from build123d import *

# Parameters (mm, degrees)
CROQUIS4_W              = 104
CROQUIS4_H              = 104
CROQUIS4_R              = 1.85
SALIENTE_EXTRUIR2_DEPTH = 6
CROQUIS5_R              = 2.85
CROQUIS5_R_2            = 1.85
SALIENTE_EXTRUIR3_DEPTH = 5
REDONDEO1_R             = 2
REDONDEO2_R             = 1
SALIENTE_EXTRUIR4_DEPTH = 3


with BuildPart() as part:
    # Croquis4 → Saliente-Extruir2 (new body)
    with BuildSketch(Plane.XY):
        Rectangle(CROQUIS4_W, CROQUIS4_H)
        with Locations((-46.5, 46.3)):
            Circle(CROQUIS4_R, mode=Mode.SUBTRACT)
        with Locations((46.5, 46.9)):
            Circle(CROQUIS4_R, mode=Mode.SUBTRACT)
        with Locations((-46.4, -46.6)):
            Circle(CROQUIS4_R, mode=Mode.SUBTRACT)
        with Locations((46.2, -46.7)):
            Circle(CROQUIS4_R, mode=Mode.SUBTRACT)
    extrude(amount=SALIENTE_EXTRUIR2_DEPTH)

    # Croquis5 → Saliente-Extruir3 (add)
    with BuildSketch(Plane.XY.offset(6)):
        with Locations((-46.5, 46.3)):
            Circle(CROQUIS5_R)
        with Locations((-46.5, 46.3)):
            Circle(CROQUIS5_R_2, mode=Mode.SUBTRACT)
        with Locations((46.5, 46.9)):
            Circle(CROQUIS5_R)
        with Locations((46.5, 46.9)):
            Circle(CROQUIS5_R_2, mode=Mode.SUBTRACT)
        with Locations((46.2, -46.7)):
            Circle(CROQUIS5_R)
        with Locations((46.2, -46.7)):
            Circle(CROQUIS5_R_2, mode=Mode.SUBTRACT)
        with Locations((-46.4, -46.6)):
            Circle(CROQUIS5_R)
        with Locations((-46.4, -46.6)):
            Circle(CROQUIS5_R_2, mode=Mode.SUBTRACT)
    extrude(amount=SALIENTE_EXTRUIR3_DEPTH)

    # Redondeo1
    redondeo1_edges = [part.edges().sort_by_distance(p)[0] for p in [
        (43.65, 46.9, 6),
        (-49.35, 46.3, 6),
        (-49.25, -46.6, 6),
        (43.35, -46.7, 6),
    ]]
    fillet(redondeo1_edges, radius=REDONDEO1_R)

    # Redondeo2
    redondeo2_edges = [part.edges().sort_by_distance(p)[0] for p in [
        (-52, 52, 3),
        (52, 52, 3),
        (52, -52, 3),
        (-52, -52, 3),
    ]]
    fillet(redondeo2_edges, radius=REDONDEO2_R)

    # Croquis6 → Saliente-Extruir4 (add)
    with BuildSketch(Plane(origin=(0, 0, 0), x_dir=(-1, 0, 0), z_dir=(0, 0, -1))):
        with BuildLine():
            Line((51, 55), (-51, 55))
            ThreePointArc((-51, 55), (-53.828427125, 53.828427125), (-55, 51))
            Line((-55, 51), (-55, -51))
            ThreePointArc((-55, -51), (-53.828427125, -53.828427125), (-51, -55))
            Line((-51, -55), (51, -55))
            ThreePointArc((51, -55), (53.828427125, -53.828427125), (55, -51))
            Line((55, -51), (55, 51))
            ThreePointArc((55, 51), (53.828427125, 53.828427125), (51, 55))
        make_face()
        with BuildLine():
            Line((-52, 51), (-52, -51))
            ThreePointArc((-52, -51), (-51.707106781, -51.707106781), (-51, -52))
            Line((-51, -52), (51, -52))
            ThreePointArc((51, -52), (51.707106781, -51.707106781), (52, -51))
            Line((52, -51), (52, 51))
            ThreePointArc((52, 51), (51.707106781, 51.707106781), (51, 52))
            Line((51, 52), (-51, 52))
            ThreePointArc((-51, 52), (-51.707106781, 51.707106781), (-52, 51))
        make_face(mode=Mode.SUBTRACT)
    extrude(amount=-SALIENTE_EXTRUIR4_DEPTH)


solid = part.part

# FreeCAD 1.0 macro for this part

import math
import FreeCAD as App
import Part
import Sketcher
from FreeCAD import Vector
Q = App.Units.Quantity


def edges_at(feature, points):
    """Names of the edges that pass closest to the given points."""
    edges = feature.Shape.Edges
    near = lambda p: min(range(len(edges)), key=lambda i: edges[i].distToShape(Part.Vertex(*p))[0])
    return sorted({f"Edge{near(p) + 1}" for p in points})


def add_polygon(sketch, points):
    """Adds a closed chain of lines whose ends are joined by coincident constraints."""
    first, n = sketch.GeometryCount, len(points)
    for a, b in zip(points, points[1:] + points[:1]):
        sketch.addGeometry(Part.LineSegment(App.Vector(*a, 0), App.Vector(*b, 0)), False)
    for i in range(n):
        sketch.addConstraint(Sketcher.Constraint("Coincident", first + i, 2, first + (i + 1) % n, 1))

doc = App.newDocument("Part")
body = doc.addObject("PartDesign::Body", "Body")

sketch1 = body.newObject("Sketcher::SketchObject", "Sketch")
sketch1.AttachmentSupport = (doc.getObject("XY_Plane"), [""])
sketch1.MapMode = "FlatFace"
add_polygon(sketch1, [(-52, 52), (-52, -52), (52, -52), (52, 52)])
sketch1.addGeometry(Part.Circle(Vector(-46.4, -46.6, 0), Vector(0, 0, 1), 1.85), False)
sketch1.addGeometry(Part.Circle(Vector(46.2, -46.7, 0), Vector(0, 0, 1), 1.85), False)
sketch1.addGeometry(Part.Circle(Vector(-46.5, 46.3, 0), Vector(0, 0, 1), 1.85), False)
sketch1.addGeometry(Part.Circle(Vector(46.5, 46.9, 0), Vector(0, 0, 1), 1.85), False)
sketch1.addConstraint(Sketcher.Constraint("Vertical", 0))
sketch1.addConstraint(Sketcher.Constraint("Horizontal", 1))
sketch1.addConstraint(Sketcher.Constraint("Vertical", 2))
sketch1.addConstraint(Sketcher.Constraint("Horizontal", 3))
sketch1.addConstraint(Sketcher.Constraint("Equal", 4, 5))
sketch1.addConstraint(Sketcher.Constraint("Equal", 5, 6))
sketch1.addConstraint(Sketcher.Constraint("Equal", 6, 7))
sketch1.addConstraint(Sketcher.Constraint("Symmetric", 0, 2, 2, 2, -1, 1))
sketch1.addConstraint(Sketcher.Constraint("Equal", 3, 0))
sketch1.addConstraint(Sketcher.Constraint("Diameter", 4, Q("3.7 mm")))
sketch1.addConstraint(Sketcher.Constraint("DistanceX", 1, 1, 1, 2, Q("104 mm")))
sketch1.addConstraint(Sketcher.Constraint("DistanceY", 5, 3, 6, 3, Q("93 mm")))
sketch1.addConstraint(Sketcher.Constraint("DistanceX", 6, 3, 7, 3, Q("93 mm")))
sketch1.addConstraint(Sketcher.Constraint("DistanceX", 4, 3, -1, 1, Q("46.4 mm")))
sketch1.addConstraint(Sketcher.Constraint("DistanceY", 4, 3, -1, 1, Q("46.6 mm")))
sketch1.addConstraint(Sketcher.Constraint("DistanceX", -1, 1, 5, 3, Q("46.2 mm")))
sketch1.addConstraint(Sketcher.Constraint("DistanceY", 5, 3, -1, 1, Q("46.7 mm")))
sketch1.addConstraint(Sketcher.Constraint("DistanceX", 6, 3, -1, 1, Q("46.5 mm")))
sketch1.addConstraint(Sketcher.Constraint("DistanceY", -1, 1, 7, 3, Q("46.9 mm")))
pad1 = body.newObject("PartDesign::Pad", "Pad")
pad1.Profile = sketch1
pad1.Length = 6

sketch2 = body.newObject("Sketcher::SketchObject", "Sketch001")
sketch2.AttachmentSupport = (doc.getObject("XY_Plane"), [""])
sketch2.MapMode = "FlatFace"
sketch2.AttachmentOffset = App.Placement(Vector(0, 0, 6), App.Rotation())
sketch2.addGeometry(Part.Circle(Vector(-46.5, 46.3, 0), Vector(0, 0, 1), 2.85), False)
sketch2.addGeometry(Part.Circle(Vector(-46.5, 46.3, 0), Vector(0, 0, 1), 1.85), False)
sketch2.addGeometry(Part.Circle(Vector(46.5, 46.9, 0), Vector(0, 0, 1), 2.85), False)
sketch2.addGeometry(Part.Circle(Vector(46.5, 46.9, 0), Vector(0, 0, 1), 1.85), False)
sketch2.addGeometry(Part.Circle(Vector(46.2, -46.7, 0), Vector(0, 0, 1), 2.85), False)
sketch2.addGeometry(Part.Circle(Vector(46.2, -46.7, 0), Vector(0, 0, 1), 1.85), False)
sketch2.addGeometry(Part.Circle(Vector(-46.4, -46.6, 0), Vector(0, 0, 1), 2.85), False)
sketch2.addGeometry(Part.Circle(Vector(-46.4, -46.6, 0), Vector(0, 0, 1), 1.85), False)
sketch2.addConstraint(Sketcher.Constraint("Coincident", 1, 3, 0, 3))
sketch2.addConstraint(Sketcher.Constraint("Coincident", 3, 3, 2, 3))
sketch2.addConstraint(Sketcher.Constraint("Coincident", 5, 3, 4, 3))
sketch2.addConstraint(Sketcher.Constraint("Coincident", 7, 3, 6, 3))
sketch2.addConstraint(Sketcher.Constraint("Equal", 0, 2))
sketch2.addConstraint(Sketcher.Constraint("Equal", 1, 3))
sketch2.addConstraint(Sketcher.Constraint("Equal", 2, 4))
sketch2.addConstraint(Sketcher.Constraint("Equal", 3, 5))
sketch2.addConstraint(Sketcher.Constraint("Equal", 4, 6))
sketch2.addConstraint(Sketcher.Constraint("Equal", 5, 7))
sketch2.addConstraint(Sketcher.Constraint("Diameter", 0, Q("5.7 mm")))
sketch2.addConstraint(Sketcher.Constraint("Diameter", 1, Q("3.7 mm")))
sketch2.addConstraint(Sketcher.Constraint("DistanceX", 0, 3, 2, 3, Q("93 mm")))
sketch2.addConstraint(Sketcher.Constraint("DistanceY", 4, 3, 0, 3, Q("93 mm")))
sketch2.addConstraint(Sketcher.Constraint("DistanceX", 0, 3, -1, 1, Q("46.5 mm")))
sketch2.addConstraint(Sketcher.Constraint("DistanceY", -1, 1, 0, 3, Q("46.3 mm")))
sketch2.addConstraint(Sketcher.Constraint("DistanceY", -1, 1, 2, 3, Q("46.9 mm")))
sketch2.addConstraint(Sketcher.Constraint("DistanceX", -1, 1, 4, 3, Q("46.2 mm")))
sketch2.addConstraint(Sketcher.Constraint("DistanceX", 6, 3, -1, 1, Q("46.4 mm")))
sketch2.addConstraint(Sketcher.Constraint("DistanceY", 6, 3, -1, 1, Q("46.6 mm")))
pad2 = body.newObject("PartDesign::Pad", "Pad001")
pad2.Profile = sketch2
pad2.Length = 5
doc.recompute()

fillet = body.newObject("PartDesign::Fillet", "Fillet")
fillet.Base = (pad2, edges_at(pad2, [
    (43.65, 46.9, 6),
    (-49.35, 46.3, 6),
    (-49.25, -46.6, 6),
    (43.35, -46.7, 6),
]))
fillet.Radius = 2
doc.recompute()

fillet2 = body.newObject("PartDesign::Fillet", "Fillet001")
fillet2.Base = (fillet, edges_at(fillet, [
    (-52, 52, 3),
    (52, 52, 3),
    (52, -52, 3),
    (-52, -52, 3),
]))
fillet2.Radius = 1

sketch3 = body.newObject("Sketcher::SketchObject", "Sketch002")
sketch3.AttachmentSupport = (doc.getObject("XY_Plane"), [""])
sketch3.MapMode = "FlatFace"
sketch3.addGeometry(Part.LineSegment(Vector(-51, 55, 0), Vector(51, 55, 0)), False)
sketch3.addGeometry(Part.ArcOfCircle(Part.Circle(Vector(51, 51, 0), Vector(0, 0, 1), 4), math.radians(0), math.radians(90)), False)
sketch3.addGeometry(Part.LineSegment(Vector(55, 51, 0), Vector(55, -51, 0)), False)
sketch3.addGeometry(Part.ArcOfCircle(Part.Circle(Vector(51, -51, 0), Vector(0, 0, 1), 4), math.radians(-90), math.radians(0)), False)
sketch3.addGeometry(Part.LineSegment(Vector(51, -55, 0), Vector(-51, -55, 0)), False)
sketch3.addGeometry(Part.ArcOfCircle(Part.Circle(Vector(-51, -51, 0), Vector(0, 0, 1), 4), math.radians(180), math.radians(270)), False)
sketch3.addGeometry(Part.LineSegment(Vector(-55, -51, 0), Vector(-55, 51, 0)), False)
sketch3.addGeometry(Part.ArcOfCircle(Part.Circle(Vector(-51, 51, 0), Vector(0, 0, 1), 4), math.radians(90), math.radians(180)), False)
sketch3.addGeometry(Part.LineSegment(Vector(52, -51, 0), Vector(52, 51, 0)), False)
sketch3.addGeometry(Part.ArcOfCircle(Part.Circle(Vector(51, 51, 0), Vector(0, 0, 1), 1), math.radians(0), math.radians(90)), False)
sketch3.addGeometry(Part.LineSegment(Vector(51, 52, 0), Vector(-51, 52, 0)), False)
sketch3.addGeometry(Part.ArcOfCircle(Part.Circle(Vector(-51, 51, 0), Vector(0, 0, 1), 1), math.radians(90), math.radians(180)), False)
sketch3.addGeometry(Part.LineSegment(Vector(-52, 51, 0), Vector(-52, -51, 0)), False)
sketch3.addGeometry(Part.ArcOfCircle(Part.Circle(Vector(-51, -51, 0), Vector(0, 0, 1), 1), math.radians(-180), math.radians(-90)), False)
sketch3.addGeometry(Part.LineSegment(Vector(-51, -52, 0), Vector(51, -52, 0)), False)
sketch3.addGeometry(Part.ArcOfCircle(Part.Circle(Vector(51, -51, 0), Vector(0, 0, 1), 1), math.radians(-90), math.radians(0)), False)
sketch3.addConstraint(Sketcher.Constraint("Tangent", 0, 2, 1, 2))
sketch3.addConstraint(Sketcher.Constraint("Tangent", 1, 1, 2, 1))
sketch3.addConstraint(Sketcher.Constraint("Tangent", 2, 2, 3, 2))
sketch3.addConstraint(Sketcher.Constraint("Tangent", 3, 1, 4, 1))
sketch3.addConstraint(Sketcher.Constraint("Tangent", 4, 2, 5, 2))
sketch3.addConstraint(Sketcher.Constraint("Tangent", 5, 1, 6, 1))
sketch3.addConstraint(Sketcher.Constraint("Tangent", 6, 2, 7, 2))
sketch3.addConstraint(Sketcher.Constraint("Tangent", 7, 1, 0, 1))
sketch3.addConstraint(Sketcher.Constraint("Tangent", 8, 2, 9, 1))
sketch3.addConstraint(Sketcher.Constraint("Tangent", 9, 2, 10, 1))
sketch3.addConstraint(Sketcher.Constraint("Tangent", 10, 2, 11, 1))
sketch3.addConstraint(Sketcher.Constraint("Tangent", 11, 2, 12, 1))
sketch3.addConstraint(Sketcher.Constraint("Tangent", 12, 2, 13, 1))
sketch3.addConstraint(Sketcher.Constraint("Tangent", 13, 2, 14, 1))
sketch3.addConstraint(Sketcher.Constraint("Tangent", 14, 2, 15, 1))
sketch3.addConstraint(Sketcher.Constraint("Tangent", 15, 2, 8, 1))
sketch3.addConstraint(Sketcher.Constraint("Horizontal", 0))
sketch3.addConstraint(Sketcher.Constraint("Vertical", 2))
sketch3.addConstraint(Sketcher.Constraint("Horizontal", 4))
sketch3.addConstraint(Sketcher.Constraint("Vertical", 6))
sketch3.addConstraint(Sketcher.Constraint("Vertical", 8))
sketch3.addConstraint(Sketcher.Constraint("Horizontal", 10))
sketch3.addConstraint(Sketcher.Constraint("Vertical", 12))
sketch3.addConstraint(Sketcher.Constraint("Horizontal", 14))
sketch3.addConstraint(Sketcher.Constraint("Coincident", 9, 3, 1, 3))
sketch3.addConstraint(Sketcher.Constraint("Coincident", 11, 3, 7, 3))
sketch3.addConstraint(Sketcher.Constraint("Coincident", 13, 3, 5, 3))
sketch3.addConstraint(Sketcher.Constraint("Equal", 1, 3))
sketch3.addConstraint(Sketcher.Constraint("Equal", 3, 5))
sketch3.addConstraint(Sketcher.Constraint("Equal", 5, 7))
sketch3.addConstraint(Sketcher.Constraint("Equal", 13, 15))
sketch3.addConstraint(Sketcher.Constraint("Symmetric", 1, 3, 5, 3, -1, 1))
sketch3.addConstraint(Sketcher.Constraint("Equal", 14, 2))
sketch3.addConstraint(Sketcher.Constraint("Radius", 1, Q("4 mm")))
sketch3.addConstraint(Sketcher.Constraint("Radius", 9, Q("1 mm")))
sketch3.addConstraint(Sketcher.Constraint("DistanceX", 0, 1, 0, 2, Q("102 mm")))
pad3 = body.newObject("PartDesign::Pad", "Pad002")
pad3.Profile = sketch3
pad3.Length = 3

doc.recompute()
